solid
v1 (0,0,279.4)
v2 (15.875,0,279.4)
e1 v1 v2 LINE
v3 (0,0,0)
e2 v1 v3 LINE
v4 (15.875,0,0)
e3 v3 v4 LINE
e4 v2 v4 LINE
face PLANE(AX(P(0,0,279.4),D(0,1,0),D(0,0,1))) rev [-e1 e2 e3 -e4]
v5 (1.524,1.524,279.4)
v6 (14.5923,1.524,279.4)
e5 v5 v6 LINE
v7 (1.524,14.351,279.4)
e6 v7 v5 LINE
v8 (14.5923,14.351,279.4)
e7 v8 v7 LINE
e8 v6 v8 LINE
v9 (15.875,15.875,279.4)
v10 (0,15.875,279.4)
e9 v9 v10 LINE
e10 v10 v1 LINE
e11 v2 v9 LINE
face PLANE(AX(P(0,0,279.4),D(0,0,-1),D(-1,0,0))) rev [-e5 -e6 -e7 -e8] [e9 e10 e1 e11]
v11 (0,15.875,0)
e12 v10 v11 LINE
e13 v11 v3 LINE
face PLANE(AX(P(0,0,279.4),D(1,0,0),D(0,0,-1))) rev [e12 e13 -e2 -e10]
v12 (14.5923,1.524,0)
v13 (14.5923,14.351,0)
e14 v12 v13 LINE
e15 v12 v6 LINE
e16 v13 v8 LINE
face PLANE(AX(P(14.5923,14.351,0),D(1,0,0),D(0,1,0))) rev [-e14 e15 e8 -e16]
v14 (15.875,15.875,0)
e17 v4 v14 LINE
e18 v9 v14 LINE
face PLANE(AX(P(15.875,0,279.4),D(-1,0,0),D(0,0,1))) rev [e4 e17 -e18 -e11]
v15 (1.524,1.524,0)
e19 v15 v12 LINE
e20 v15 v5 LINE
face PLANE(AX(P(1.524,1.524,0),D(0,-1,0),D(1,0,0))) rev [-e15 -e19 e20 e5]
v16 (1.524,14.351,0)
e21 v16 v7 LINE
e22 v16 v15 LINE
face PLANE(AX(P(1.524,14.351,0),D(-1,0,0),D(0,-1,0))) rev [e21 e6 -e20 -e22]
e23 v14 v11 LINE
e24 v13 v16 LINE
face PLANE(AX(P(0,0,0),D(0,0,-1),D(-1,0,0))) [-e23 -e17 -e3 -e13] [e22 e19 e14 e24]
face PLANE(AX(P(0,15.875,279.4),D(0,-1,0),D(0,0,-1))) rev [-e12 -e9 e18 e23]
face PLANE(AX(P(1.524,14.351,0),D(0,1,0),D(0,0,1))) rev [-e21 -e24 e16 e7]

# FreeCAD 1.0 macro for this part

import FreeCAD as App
import Part
import Sketcher
from FreeCAD import Vector
Q = App.Units.Quantity


def add_polygon(sketch, points):
    """Adds a closed chain of lines whose ends are joined by coincident constraints."""
    first, n = sketch.GeometryCount, len(points)
    for a, b in zip(points, points[1:] + points[:1]):
        sketch.addGeometry(Part.LineSegment(App.Vector(*a, 0), App.Vector(*b, 0)), False)
    for i in range(n):
        sketch.addConstraint(Sketcher.Constraint("Coincident", first + i, 2, first + (i + 1) % n, 1))

doc = App.newDocument("Part")
body = doc.addObject("PartDesign::Body", "Body")

sketch1 = body.newObject("Sketcher::SketchObject", "Sketch")
sketch1.AttachmentSupport = (doc.getObject("XY_Plane"), [""])
sketch1.MapMode = "FlatFace"
add_polygon(sketch1, [(0, 16), (0, 0), (16, 0), (16, 16)])
sketch1.addConstraint([
    Sketcher.Constraint("Vertical", 0),
    Sketcher.Constraint("Horizontal", 1),
    Sketcher.Constraint("Vertical", 2),
    Sketcher.Constraint("Horizontal", 3),
    Sketcher.Constraint("Coincident", 0, 2, -1, 1),
    Sketcher.Constraint("Equal", 3, 0),
    Sketcher.Constraint("DistanceX", 1, 1, 1, 2, Q("0.625 in")),
])
pad1 = body.newObject("PartDesign::Pad", "Pad")
pad1.Profile = sketch1
pad1.Length = Q("11 in")

sketch2 = body.newObject("Sketcher::SketchObject", "Sketch001")
sketch2.AttachmentSupport = (doc.getObject("XY_Plane"), [""])
sketch2.MapMode = "FlatFace"
sketch2.AttachmentOffset = App.Placement(Vector(0, 0, 11 * 25.4), App.Rotation())
add_polygon(sketch2, [(2, 14), (2, 2), (15, 2), (15, 14)])
sketch2.addConstraint([
    Sketcher.Constraint("Vertical", 0),
    Sketcher.Constraint("Horizontal", 1),
    Sketcher.Constraint("Vertical", 2),
    Sketcher.Constraint("Horizontal", 3),
    Sketcher.Constraint("DistanceY", 0, 2, 0, 1, Q("0.505 in")),
    Sketcher.Constraint("DistanceX", -1, 1, 0, 2, Q("0.06 in")),
    Sketcher.Constraint("DistanceY", -1, 1, 0, 2, Q("0.06 in")),
    Sketcher.Constraint("DistanceX", 1, 1, 1, 2, Q("0.5145 in")),
])
pocket1 = body.newObject("PartDesign::Pocket", "Pocket")
pocket1.Profile = sketch2
pocket1.Type = "ThroughAll"

doc.recompute()
